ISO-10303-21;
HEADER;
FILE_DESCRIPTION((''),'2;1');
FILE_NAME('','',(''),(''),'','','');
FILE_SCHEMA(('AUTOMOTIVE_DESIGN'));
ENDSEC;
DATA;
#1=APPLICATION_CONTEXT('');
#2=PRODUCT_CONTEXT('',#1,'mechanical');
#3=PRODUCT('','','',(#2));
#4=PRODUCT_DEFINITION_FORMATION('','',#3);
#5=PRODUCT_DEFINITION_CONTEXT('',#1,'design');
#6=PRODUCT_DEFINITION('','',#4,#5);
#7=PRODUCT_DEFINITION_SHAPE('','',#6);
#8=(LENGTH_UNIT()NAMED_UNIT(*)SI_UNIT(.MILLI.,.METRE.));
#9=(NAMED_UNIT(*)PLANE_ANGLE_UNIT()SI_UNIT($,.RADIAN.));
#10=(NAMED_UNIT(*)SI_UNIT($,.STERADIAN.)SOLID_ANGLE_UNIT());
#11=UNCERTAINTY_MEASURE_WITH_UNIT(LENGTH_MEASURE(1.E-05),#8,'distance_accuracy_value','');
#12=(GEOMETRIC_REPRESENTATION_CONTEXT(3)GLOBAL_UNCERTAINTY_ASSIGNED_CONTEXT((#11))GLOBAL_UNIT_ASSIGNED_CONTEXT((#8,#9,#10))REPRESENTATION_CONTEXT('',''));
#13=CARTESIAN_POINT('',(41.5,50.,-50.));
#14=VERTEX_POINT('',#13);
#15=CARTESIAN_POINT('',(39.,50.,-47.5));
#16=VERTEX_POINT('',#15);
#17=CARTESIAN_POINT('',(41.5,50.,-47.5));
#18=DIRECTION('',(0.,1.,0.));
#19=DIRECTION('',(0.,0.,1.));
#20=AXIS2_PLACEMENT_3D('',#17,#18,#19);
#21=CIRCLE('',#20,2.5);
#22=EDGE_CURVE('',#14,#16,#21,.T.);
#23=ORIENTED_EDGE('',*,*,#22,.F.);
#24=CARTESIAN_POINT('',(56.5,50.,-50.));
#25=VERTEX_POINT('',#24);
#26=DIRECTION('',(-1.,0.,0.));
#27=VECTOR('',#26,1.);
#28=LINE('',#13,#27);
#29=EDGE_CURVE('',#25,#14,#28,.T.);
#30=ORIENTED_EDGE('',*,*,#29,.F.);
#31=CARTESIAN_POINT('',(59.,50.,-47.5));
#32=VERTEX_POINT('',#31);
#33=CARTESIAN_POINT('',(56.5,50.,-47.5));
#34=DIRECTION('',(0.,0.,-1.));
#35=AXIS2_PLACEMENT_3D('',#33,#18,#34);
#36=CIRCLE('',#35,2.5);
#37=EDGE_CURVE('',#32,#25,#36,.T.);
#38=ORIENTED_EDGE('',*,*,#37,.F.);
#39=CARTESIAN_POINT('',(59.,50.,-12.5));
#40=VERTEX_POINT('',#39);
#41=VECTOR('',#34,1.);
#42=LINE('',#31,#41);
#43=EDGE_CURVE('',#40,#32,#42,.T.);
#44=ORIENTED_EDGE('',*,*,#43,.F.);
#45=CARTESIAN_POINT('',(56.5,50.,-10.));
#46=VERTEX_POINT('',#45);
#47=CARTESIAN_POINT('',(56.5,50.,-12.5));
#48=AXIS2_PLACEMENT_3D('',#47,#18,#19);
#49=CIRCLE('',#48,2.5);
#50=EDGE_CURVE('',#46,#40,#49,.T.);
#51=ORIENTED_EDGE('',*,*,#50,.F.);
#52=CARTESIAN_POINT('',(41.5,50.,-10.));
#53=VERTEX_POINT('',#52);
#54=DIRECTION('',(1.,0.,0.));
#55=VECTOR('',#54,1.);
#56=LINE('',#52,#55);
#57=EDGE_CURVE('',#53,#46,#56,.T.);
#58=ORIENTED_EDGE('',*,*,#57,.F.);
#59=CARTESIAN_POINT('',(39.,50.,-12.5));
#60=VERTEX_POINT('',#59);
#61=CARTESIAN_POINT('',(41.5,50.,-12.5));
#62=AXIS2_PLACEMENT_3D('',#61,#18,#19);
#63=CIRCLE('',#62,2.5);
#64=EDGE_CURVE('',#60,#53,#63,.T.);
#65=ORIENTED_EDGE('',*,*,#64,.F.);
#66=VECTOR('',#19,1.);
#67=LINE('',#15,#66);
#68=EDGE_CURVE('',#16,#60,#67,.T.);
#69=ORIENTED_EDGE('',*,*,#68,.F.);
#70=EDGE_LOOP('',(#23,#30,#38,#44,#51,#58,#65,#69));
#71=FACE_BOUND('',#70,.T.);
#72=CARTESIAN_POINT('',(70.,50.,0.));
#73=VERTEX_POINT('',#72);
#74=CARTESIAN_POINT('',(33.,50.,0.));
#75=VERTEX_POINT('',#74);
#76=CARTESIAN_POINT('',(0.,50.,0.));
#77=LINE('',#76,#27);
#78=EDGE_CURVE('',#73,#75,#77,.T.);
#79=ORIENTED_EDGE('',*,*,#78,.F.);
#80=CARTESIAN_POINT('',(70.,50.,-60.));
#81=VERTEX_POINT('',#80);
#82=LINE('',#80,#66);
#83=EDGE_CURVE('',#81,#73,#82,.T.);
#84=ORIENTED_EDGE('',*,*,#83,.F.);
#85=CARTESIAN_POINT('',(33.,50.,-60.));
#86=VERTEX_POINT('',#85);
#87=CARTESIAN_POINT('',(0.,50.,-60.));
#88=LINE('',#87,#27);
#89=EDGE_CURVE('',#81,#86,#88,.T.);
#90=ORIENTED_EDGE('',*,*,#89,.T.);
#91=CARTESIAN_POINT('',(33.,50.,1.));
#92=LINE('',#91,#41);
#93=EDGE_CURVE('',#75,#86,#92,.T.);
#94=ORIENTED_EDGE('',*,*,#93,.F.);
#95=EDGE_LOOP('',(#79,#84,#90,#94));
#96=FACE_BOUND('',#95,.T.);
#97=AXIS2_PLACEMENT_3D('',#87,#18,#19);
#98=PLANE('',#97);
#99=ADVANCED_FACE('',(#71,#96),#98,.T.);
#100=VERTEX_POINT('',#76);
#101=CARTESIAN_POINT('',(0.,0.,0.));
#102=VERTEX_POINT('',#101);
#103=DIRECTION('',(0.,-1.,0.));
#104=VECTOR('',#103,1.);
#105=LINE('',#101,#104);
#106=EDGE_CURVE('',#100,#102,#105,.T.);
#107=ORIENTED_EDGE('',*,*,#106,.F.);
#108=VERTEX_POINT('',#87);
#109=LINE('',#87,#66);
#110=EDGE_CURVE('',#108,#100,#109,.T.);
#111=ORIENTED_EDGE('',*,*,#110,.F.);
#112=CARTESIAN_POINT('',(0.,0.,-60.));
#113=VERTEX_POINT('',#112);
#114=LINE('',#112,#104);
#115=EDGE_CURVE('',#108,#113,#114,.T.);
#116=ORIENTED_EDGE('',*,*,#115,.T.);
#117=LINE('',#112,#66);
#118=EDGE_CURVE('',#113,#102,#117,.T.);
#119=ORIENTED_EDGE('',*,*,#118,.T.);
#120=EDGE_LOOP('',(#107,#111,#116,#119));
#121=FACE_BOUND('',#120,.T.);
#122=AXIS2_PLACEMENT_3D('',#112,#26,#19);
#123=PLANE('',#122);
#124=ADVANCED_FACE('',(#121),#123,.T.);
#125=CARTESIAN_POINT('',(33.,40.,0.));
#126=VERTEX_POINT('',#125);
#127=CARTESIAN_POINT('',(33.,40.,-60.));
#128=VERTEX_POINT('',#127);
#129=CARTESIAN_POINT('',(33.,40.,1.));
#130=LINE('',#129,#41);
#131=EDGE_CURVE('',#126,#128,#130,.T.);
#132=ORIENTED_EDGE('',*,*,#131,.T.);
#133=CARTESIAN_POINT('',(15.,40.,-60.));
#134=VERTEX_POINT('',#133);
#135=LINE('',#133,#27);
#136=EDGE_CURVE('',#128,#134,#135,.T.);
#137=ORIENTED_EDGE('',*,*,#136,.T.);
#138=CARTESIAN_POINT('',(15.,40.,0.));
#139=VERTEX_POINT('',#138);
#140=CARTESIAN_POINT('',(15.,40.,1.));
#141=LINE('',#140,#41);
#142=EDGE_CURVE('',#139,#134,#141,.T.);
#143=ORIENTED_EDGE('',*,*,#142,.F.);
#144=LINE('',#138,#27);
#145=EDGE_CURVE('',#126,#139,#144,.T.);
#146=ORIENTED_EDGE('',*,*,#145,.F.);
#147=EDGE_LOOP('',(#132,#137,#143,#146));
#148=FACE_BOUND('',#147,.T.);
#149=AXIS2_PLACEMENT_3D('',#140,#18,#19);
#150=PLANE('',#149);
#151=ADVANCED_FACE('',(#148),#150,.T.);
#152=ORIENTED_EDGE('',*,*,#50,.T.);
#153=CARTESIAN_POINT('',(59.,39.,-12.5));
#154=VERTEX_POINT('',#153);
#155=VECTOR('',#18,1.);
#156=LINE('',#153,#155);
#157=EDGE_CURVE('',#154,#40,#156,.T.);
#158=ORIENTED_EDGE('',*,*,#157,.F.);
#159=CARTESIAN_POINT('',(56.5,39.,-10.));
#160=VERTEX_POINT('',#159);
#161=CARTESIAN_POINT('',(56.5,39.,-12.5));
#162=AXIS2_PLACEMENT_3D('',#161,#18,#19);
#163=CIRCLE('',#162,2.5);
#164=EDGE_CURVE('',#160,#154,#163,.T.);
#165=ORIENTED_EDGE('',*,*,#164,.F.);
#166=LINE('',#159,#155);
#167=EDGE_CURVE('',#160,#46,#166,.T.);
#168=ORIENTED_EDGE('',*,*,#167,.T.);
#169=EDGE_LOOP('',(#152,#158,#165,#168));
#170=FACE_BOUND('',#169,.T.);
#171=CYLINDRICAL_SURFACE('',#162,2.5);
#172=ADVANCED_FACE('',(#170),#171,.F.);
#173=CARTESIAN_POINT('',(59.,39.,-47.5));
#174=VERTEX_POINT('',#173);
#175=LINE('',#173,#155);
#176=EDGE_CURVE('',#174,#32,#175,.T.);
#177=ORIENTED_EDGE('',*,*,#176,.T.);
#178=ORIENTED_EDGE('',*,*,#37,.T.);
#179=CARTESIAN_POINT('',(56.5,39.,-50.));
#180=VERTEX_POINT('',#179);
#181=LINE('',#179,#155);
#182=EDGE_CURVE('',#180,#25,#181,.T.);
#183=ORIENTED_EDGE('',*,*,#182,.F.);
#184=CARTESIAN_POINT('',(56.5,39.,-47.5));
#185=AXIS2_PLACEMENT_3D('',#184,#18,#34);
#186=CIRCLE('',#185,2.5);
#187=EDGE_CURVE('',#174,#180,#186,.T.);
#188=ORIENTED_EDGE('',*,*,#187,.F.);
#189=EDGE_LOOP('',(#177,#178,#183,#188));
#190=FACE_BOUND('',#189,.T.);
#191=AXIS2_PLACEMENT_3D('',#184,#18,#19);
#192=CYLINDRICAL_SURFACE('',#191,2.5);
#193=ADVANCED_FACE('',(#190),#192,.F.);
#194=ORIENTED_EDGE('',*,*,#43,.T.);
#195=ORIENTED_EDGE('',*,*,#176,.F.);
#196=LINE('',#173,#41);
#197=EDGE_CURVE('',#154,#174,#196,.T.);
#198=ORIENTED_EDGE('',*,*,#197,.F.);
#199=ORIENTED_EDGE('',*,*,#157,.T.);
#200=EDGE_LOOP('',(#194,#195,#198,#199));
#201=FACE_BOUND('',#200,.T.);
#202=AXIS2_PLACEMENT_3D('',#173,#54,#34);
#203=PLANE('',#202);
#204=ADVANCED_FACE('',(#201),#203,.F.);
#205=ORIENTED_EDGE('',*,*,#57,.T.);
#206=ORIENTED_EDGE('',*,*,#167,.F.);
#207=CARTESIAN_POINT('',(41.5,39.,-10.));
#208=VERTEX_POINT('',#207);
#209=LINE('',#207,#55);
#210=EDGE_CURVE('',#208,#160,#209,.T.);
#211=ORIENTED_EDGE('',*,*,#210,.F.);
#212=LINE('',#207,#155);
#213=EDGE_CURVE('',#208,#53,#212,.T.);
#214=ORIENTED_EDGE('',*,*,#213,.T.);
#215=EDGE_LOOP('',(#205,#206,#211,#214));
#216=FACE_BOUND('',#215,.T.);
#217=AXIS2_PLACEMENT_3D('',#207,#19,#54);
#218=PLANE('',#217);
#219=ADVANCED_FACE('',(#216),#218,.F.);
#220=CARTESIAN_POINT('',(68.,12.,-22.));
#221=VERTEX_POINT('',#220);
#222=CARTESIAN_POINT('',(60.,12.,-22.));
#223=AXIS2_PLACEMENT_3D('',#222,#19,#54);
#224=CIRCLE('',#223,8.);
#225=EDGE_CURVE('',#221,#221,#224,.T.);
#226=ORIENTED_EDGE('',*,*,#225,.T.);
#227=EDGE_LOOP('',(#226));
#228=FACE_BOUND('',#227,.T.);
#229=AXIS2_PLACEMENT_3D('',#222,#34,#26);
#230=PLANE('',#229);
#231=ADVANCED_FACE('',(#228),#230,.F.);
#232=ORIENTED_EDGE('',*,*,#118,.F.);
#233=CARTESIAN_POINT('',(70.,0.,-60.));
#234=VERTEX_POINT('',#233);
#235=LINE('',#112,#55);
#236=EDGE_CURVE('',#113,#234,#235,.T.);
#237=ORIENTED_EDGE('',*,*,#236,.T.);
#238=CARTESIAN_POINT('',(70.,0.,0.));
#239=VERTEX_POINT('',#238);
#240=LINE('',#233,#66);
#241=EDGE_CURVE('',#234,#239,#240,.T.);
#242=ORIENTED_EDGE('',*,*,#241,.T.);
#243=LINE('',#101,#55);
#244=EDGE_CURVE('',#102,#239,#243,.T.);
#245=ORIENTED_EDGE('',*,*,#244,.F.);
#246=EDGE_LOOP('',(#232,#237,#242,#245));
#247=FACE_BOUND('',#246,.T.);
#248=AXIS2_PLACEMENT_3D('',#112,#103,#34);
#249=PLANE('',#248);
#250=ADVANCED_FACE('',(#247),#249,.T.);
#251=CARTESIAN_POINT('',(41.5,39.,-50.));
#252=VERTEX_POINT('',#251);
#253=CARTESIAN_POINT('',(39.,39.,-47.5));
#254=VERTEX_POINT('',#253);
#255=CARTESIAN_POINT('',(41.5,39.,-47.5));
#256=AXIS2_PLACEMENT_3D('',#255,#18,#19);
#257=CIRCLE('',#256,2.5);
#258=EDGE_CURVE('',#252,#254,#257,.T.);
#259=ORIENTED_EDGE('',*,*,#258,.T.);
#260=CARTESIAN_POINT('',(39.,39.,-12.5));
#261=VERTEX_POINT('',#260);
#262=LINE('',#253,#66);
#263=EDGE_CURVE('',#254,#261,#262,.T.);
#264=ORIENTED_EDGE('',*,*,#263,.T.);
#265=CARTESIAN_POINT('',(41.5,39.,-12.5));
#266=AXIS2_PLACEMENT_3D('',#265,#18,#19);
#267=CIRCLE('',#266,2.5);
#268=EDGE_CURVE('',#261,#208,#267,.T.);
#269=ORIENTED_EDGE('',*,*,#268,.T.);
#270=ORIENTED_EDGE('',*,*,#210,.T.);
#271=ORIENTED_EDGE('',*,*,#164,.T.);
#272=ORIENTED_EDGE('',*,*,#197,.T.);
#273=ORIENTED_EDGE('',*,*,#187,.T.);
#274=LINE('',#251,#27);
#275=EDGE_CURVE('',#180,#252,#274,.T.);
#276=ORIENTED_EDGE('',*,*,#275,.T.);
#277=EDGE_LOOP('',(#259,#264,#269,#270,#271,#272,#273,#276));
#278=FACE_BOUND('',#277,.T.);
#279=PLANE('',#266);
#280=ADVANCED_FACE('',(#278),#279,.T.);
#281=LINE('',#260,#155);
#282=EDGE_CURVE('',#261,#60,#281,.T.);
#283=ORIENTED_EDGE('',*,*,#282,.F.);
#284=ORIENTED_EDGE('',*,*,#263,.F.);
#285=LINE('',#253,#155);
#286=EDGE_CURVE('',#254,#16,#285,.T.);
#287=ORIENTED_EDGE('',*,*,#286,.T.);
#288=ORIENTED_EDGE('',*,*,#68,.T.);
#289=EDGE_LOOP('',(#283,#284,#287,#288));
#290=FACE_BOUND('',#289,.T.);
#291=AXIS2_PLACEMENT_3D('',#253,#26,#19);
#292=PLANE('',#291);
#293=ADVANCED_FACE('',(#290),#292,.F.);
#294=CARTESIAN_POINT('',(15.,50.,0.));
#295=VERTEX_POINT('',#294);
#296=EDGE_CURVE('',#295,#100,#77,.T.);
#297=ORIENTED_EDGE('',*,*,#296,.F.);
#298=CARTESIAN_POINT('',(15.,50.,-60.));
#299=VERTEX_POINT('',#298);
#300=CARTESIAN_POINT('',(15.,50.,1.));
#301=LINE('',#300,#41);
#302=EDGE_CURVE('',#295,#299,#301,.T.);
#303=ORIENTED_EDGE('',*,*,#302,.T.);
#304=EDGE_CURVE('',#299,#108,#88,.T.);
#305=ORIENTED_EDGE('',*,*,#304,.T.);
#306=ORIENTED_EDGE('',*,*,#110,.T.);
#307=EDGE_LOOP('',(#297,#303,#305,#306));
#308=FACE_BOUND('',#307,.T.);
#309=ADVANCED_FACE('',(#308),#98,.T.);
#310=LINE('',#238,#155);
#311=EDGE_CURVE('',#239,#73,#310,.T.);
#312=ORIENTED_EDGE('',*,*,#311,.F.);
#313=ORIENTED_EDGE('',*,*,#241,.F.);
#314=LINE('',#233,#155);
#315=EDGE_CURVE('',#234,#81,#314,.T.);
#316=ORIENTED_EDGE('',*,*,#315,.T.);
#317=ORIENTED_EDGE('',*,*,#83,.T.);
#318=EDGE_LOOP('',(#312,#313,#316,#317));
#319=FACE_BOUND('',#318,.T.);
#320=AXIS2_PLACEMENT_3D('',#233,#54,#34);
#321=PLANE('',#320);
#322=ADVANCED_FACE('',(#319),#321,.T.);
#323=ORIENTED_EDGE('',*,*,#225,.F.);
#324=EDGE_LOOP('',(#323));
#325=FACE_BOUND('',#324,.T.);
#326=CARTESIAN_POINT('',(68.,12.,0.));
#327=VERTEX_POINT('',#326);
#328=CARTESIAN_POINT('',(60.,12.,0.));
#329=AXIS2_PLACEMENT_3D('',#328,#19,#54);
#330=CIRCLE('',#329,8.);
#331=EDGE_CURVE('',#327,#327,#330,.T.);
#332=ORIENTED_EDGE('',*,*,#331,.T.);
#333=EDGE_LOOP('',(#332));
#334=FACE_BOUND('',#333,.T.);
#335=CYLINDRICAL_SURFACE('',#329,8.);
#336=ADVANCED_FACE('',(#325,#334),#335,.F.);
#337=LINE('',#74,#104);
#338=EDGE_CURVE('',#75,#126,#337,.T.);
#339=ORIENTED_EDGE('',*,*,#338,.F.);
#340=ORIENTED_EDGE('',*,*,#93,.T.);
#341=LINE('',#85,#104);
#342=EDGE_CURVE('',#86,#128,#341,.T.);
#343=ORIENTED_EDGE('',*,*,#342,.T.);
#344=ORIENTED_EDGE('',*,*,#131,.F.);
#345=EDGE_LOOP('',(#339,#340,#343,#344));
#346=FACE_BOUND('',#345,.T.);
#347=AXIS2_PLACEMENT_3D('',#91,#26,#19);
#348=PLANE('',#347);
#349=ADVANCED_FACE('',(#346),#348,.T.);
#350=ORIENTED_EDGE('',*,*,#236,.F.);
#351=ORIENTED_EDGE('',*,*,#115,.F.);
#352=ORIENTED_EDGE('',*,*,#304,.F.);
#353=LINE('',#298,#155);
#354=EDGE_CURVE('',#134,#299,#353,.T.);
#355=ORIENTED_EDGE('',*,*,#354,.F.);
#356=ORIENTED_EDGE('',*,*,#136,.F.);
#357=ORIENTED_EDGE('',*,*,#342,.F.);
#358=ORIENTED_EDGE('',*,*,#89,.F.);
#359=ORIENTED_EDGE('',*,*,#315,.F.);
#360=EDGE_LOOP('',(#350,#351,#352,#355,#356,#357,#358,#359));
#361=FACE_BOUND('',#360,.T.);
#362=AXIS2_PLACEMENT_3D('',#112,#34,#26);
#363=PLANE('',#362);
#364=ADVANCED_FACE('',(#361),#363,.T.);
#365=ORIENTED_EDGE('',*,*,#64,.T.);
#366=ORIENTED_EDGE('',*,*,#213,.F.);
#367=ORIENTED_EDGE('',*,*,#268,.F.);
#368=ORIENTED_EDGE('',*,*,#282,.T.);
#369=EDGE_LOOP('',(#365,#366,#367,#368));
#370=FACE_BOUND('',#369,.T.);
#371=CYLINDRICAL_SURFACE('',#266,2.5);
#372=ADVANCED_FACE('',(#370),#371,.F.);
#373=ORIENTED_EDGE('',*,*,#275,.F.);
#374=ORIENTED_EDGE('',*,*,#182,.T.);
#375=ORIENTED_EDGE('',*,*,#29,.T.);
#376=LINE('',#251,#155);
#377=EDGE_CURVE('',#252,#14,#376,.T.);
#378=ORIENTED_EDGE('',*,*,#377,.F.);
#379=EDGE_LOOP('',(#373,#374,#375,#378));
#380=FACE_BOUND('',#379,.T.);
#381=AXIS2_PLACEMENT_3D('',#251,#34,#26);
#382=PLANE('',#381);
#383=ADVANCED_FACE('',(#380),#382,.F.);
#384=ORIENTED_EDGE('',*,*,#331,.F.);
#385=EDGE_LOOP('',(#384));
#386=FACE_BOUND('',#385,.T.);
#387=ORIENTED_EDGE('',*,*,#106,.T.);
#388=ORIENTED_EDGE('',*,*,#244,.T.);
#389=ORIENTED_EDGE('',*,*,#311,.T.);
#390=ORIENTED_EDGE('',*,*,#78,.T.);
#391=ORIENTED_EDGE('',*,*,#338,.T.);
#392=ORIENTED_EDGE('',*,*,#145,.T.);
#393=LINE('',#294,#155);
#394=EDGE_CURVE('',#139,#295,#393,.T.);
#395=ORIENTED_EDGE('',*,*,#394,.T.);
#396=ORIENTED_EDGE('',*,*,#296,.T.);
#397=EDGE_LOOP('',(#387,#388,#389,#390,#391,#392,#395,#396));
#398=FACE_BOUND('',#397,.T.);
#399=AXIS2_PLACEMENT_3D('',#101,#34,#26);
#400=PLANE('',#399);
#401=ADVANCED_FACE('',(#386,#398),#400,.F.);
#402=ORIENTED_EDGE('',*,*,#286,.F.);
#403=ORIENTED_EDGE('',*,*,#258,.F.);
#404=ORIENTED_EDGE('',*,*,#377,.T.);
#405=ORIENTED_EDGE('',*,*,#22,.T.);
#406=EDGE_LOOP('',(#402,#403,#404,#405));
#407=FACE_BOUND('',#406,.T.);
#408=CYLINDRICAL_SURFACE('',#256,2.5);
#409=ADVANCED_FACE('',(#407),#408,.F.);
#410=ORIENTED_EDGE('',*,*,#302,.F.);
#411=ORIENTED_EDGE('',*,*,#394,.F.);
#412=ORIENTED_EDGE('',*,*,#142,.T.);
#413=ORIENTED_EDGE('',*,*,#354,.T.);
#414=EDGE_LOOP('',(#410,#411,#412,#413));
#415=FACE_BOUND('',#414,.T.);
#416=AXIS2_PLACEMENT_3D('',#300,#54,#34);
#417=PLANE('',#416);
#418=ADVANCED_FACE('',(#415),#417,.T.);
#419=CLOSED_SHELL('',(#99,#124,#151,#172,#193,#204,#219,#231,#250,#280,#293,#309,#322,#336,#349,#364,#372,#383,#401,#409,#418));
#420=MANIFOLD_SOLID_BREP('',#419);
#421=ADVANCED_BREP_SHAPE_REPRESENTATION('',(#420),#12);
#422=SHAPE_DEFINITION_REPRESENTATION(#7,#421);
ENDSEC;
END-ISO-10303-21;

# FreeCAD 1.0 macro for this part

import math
import FreeCAD as App
import Part
import Sketcher
from FreeCAD import Vector


def add_polygon(sketch, points):
    """Adds a closed chain of lines whose ends are joined by coincident constraints."""
    first, n = sketch.GeometryCount, len(points)
    for a, b in zip(points, points[1:] + points[:1]):
        sketch.addGeometry(Part.LineSegment(App.Vector(*a, 0), App.Vector(*b, 0)), False)
    for i in range(n):
        sketch.addConstraint(Sketcher.Constraint("Coincident", first + i, 2, first + (i + 1) % n, 1))

doc = App.newDocument("Part")
params = doc.addObject("Spreadsheet::Sheet", "Params")
for row, (alias, value) in enumerate([
    ("sketch1_width", "70 mm"),
    ("sketch1_height", "50 mm"),
    ("pad1_length", "60 mm"),
    ("sketch2_diameter", "16 mm"),
    ("hole_diameter", "16 mm"),
    ("hole_depth", "22 mm"),
    ("sketch3_radius", "2.5 mm"),
    ("sketch3_width", "15 mm"),
    ("sketch3_height", "35 mm"),
    ("pocket1_length", "11 mm"),
    ("sketch4_width", "18 mm"),
    ("sketch4_height", "10 mm"),
    ("sketch5_height", "60 mm"),
], start=1):
    params.set(f"A{row}", alias)
    params.set(f"B{row}", "=" + value)
    params.setAlias(f"B{row}", alias)

body = doc.addObject("PartDesign::Body", "Body")

# Sketch on XY plane
sketch1 = doc.addObject("Sketcher::SketchObject", "Sketch")
body.addObject(sketch1)
sketch1.AttachmentSupport = (doc.XY_Plane, [""])
sketch1.MapMode = "FlatFace"
add_polygon(sketch1, [(0, 50), (0, 0), (70, 0), (70, 50)])  # lines 0-3
sketch1.addConstraint(Sketcher.Constraint("Vertical", 0))
sketch1.addConstraint(Sketcher.Constraint("Horizontal", 1))
sketch1.addConstraint(Sketcher.Constraint("Vertical", 2))
sketch1.addConstraint(Sketcher.Constraint("Horizontal", 3))
sketch1.addConstraint(Sketcher.Constraint("Coincident", 0, 2, -1, 1))
sketch1.addConstraint(Sketcher.Constraint("DistanceX", 1, 1, 1, 2, 70.0))
sketch1.addConstraint(Sketcher.Constraint("DistanceY", 0, 2, 0, 1, 50.0))
sketch1.setExpression("Constraints[9]", "Params.sketch1_width")
sketch1.setExpression("Constraints[10]", "Params.sketch1_height")
pad1 = doc.addObject("PartDesign::Pad", "Pad")
body.addObject(pad1)
pad1.Profile = sketch1
pad1.setExpression("Length", "Params.pad1_length")
pad1.Reversed = True

# Sketch on XY plane
sketch2 = doc.addObject("Sketcher::SketchObject", "Sketch001")
body.addObject(sketch2)
sketch2.AttachmentSupport = (doc.XY_Plane, [""])
sketch2.MapMode = "FlatFace"
sketch2.addGeometry(Part.Circle(Vector(60, 12, 0), Vector(0, 0, 1), 8), False)
sketch2.addConstraint(Sketcher.Constraint("Diameter", 0, 16.0))
sketch2.addConstraint(Sketcher.Constraint("DistanceX", -1, 1, 0, 3, 60.0))
sketch2.addConstraint(Sketcher.Constraint("DistanceY", -1, 1, 0, 3, 12.0))
sketch2.setExpression("Constraints[0]", "Params.sketch2_diameter")
doc.recompute()
hole = doc.addObject("PartDesign::Hole", "Hole")
body.addObject(hole)
hole.Profile = sketch2
hole.ThreadType = "None"
hole.setExpression("Diameter", "Params.hole_diameter")
hole.DepthType = "Dimension"
hole.setExpression("Depth", "Params.hole_depth")
hole.DrillPoint = "Flat"

# Sketch on XZ plane
sketch3 = doc.addObject("Sketcher::SketchObject", "Sketch002")
body.addObject(sketch3)
sketch3.AttachmentSupport = (doc.XZ_Plane, [""])
sketch3.MapMode = "FlatFace"
sketch3.AttachmentOffset = App.Placement(Vector(0, 0, -50), App.Rotation())
sketch3.addGeometry(Part.LineSegment(Vector(56.5, -50, 0), Vector(41.5, -50, 0)), False)
sketch3.addGeometry(Part.ArcOfCircle(Part.Circle(Vector(41.5, -47.5, 0), Vector(0, 0, 1), 2.5), math.radians(180), math.radians(270)), False)
sketch3.addGeometry(Part.LineSegment(Vector(39, -47.5, 0), Vector(39, -12.5, 0)), False)
sketch3.addGeometry(Part.ArcOfCircle(Part.Circle(Vector(41.5, -12.5, 0), Vector(0, 0, 1), 2.5), math.radians(90), math.radians(180)), False)
sketch3.addGeometry(Part.LineSegment(Vector(41.5, -10, 0), Vector(56.5, -10, 0)), False)
sketch3.addGeometry(Part.ArcOfCircle(Part.Circle(Vector(56.5, -12.5, 0), Vector(0, 0, 1), 2.5), math.radians(0), math.radians(90)), False)
sketch3.addGeometry(Part.LineSegment(Vector(59, -12.5, 0), Vector(59, -47.5, 0)), False)
sketch3.addGeometry(Part.ArcOfCircle(Part.Circle(Vector(56.5, -47.5, 0), Vector(0, 0, 1), 2.5), math.radians(-90), math.radians(0)), False)
sketch3.addConstraint(Sketcher.Constraint("Tangent", 0, 2, 1, 2))
sketch3.addConstraint(Sketcher.Constraint("Tangent", 1, 1, 2, 1))
sketch3.addConstraint(Sketcher.Constraint("Tangent", 2, 2, 3, 2))
sketch3.addConstraint(Sketcher.Constraint("Tangent", 3, 1, 4, 1))
sketch3.addConstraint(Sketcher.Constraint("Tangent", 4, 2, 5, 2))
sketch3.addConstraint(Sketcher.Constraint("Tangent", 5, 1, 6, 1))
sketch3.addConstraint(Sketcher.Constraint("Tangent", 6, 2, 7, 2))
sketch3.addConstraint(Sketcher.Constraint("Tangent", 7, 1, 0, 1))
sketch3.addConstraint(Sketcher.Constraint("Horizontal", 0))
sketch3.addConstraint(Sketcher.Constraint("Vertical", 2))
sketch3.addConstraint(Sketcher.Constraint("Horizontal", 4))
sketch3.addConstraint(Sketcher.Constraint("Vertical", 6))
sketch3.addConstraint(Sketcher.Constraint("Equal", 1, 3))
sketch3.addConstraint(Sketcher.Constraint("Equal", 3, 5))
sketch3.addConstraint(Sketcher.Constraint("Equal", 5, 7))
sketch3.addConstraint(Sketcher.Constraint("Radius", 1, 2.5))
sketch3.addConstraint(Sketcher.Constraint("DistanceX", 0, 2, 0, 1, 15.0))
sketch3.addConstraint(Sketcher.Constraint("DistanceY", 2, 1, 2, 2, 35.0))
sketch3.addConstraint(Sketcher.Constraint("DistanceY", 0, 2, -1, 1, 50.0))
sketch3.addConstraint(Sketcher.Constraint("DistanceX", -1, 1, 1, 1, 39.0))
sketch3.setExpression("Constraints[15]", "Params.sketch3_radius")
sketch3.setExpression("Constraints[16]", "Params.sketch3_width")
sketch3.setExpression("Constraints[17]", "Params.sketch3_height")
pocket1 = doc.addObject("PartDesign::Pocket", "Pocket")
body.addObject(pocket1)
pocket1.Profile = sketch3
pocket1.setExpression("Length", "Params.pocket1_length")
pocket1.Reversed = True

# Sketch on XY plane
sketch4 = doc.addObject("Sketcher::SketchObject", "Sketch003")
body.addObject(sketch4)
sketch4.AttachmentSupport = (doc.XY_Plane, [""])
sketch4.MapMode = "FlatFace"
add_polygon(sketch4, [(15, 50), (15, 40), (33, 40), (33, 50)])  # lines 0-3
sketch4.addConstraint(Sketcher.Constraint("Vertical", 0))
sketch4.addConstraint(Sketcher.Constraint("Horizontal", 1))
sketch4.addConstraint(Sketcher.Constraint("Vertical", 2))
sketch4.addConstraint(Sketcher.Constraint("Horizontal", 3))
sketch4.addConstraint(Sketcher.Constraint("DistanceX", 1, 1, 1, 2, 18.0))
sketch4.addConstraint(Sketcher.Constraint("DistanceY", 0, 2, 0, 1, 10.0))
sketch4.addConstraint(Sketcher.Constraint("DistanceX", -1, 1, 0, 2, 15.0))
sketch4.addConstraint(Sketcher.Constraint("DistanceY", -1, 1, 0, 2, 40.0))
sketch4.setExpression("Constraints[8]", "Params.sketch4_width")
sketch4.setExpression("Constraints[9]", "Params.sketch4_height")

# Sketch on XZ plane
sketch5 = doc.addObject("Sketcher::SketchObject", "Sketch004")
body.addObject(sketch5)
sketch5.AttachmentSupport = (doc.XZ_Plane, [""])
sketch5.MapMode = "FlatFace"
sketch5.AttachmentOffset = App.Placement(Vector(0, 0, -50), App.Rotation())
sketch5.addGeometry(Part.LineSegment(Vector(15, 0, 0), Vector(15, -60, 0)), False)
sketch5.addConstraint(Sketcher.Constraint("Vertical", 0))
sketch5.addConstraint(Sketcher.Constraint("PointOnObject", 0, 1, -1))
sketch5.addConstraint(Sketcher.Constraint("DistanceY", 0, 2, 0, 1, 60.0))
sketch5.addConstraint(Sketcher.Constraint("DistanceX", -1, 1, 0, 1, 15.0))
sketch5.setExpression("Constraints[2]", "Params.sketch5_height")
doc.recompute()

subtractivepipe = doc.addObject("PartDesign::SubtractivePipe", "SubtractivePipe")
body.addObject(subtractivepipe)
subtractivepipe.Profile = sketch4
subtractivepipe.Spine = (sketch5, ["Edge1"])

doc.recompute()
